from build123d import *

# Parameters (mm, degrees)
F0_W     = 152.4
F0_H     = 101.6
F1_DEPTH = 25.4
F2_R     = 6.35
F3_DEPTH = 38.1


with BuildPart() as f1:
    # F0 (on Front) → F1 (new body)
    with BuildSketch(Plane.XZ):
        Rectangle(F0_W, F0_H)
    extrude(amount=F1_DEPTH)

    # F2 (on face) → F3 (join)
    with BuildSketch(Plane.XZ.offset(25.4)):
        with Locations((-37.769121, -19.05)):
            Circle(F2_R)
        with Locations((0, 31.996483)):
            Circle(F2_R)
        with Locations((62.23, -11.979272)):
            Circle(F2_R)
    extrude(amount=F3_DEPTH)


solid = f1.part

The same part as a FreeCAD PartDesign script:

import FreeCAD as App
import Part
import Sketcher
Q = App.Units.Quantity


def add_polygon(sketch, points):
    """Adds a closed chain of lines whose ends are joined by coincident constraints."""
    first, n = sketch.GeometryCount, len(points)
    for a, b in zip(points, points[1:] + points[:1]):
        sketch.addGeometry(Part.LineSegment(App.Vector(*a, 0), App.Vector(*b, 0)), False)
    for i in range(n):
        sketch.addConstraint(Sketcher.Constraint("Coincident", first + i, 2, first + (i + 1) % n, 1))

doc = App.newDocument("Part")
body = doc.addObject("PartDesign::Body", "Body")

sketch1 = doc.addObject("Sketcher::SketchObject", "Sketch")
body.addObject(sketch1)
sketch1.AttachmentSupport = (doc.XZ_Plane, [""])
sketch1.MapMode = "FlatFace"
add_polygon(sketch1, [(-76, 51), (-76, -51), (76, -51), (76, 51)])
sketch1.addConstraint([
    Sketcher.Constraint("Vertical", 0),
    Sketcher.Constraint("Horizontal", 1),
    Sketcher.Constraint("Vertical", 2),
    Sketcher.Constraint("Horizontal", 3),
    Sketcher.Constraint("Symmetric", 0, 2, 2, 2, -1, 1),
    Sketcher.Constraint("DistanceX", 1, 1, 1, 2, Q("6 in")),
    Sketcher.Constraint("DistanceY", 0, 2, 0, 1, Q("4 in")),
])
pad1 = doc.addObject("PartDesign::Pad", "Pad")
body.addObject(pad1)
pad1.Profile = sketch1
pad1.Length = Q("1 in")

sketch2 = doc.addObject("Sketcher::SketchObject", "Sketch001")
body.addObject(sketch2)
sketch2.AttachmentSupport = (doc.XZ_Plane, [""])
sketch2.MapMode = "FlatFace"
sketch2.AttachmentOffset = App.Placement(App.Vector(0, 0, 1 * 25.4), App.Rotation())
sketch2.addGeometry([
    Part.Circle(App.Vector(-38, -19, 0), App.Vector(0, 0, 1), 6),
    Part.Circle(App.Vector(0, 32, 0), App.Vector(0, 0, 1), 6),
    Part.Circle(App.Vector(62, -12, 0), App.Vector(0, 0, 1), 6),
], False)
sketch2.addConstraint([
    Sketcher.Constraint("Equal", 0, 1),
    Sketcher.Constraint("Equal", 1, 2),
    Sketcher.Constraint("PointOnObject", 1, 3, -2),
    Sketcher.Constraint("Diameter", 0, Q("0.5 in")),
    Sketcher.Constraint("DistanceY", 0, 3, -1, 1, Q("0.75 in")),
    Sketcher.Constraint("DistanceX", -1, 1, 2, 3, Q("2.45 in")),
    Sketcher.Constraint("DistanceX", 0, 3, -1, 1, 37.769121),
    Sketcher.Constraint("DistanceY", 0, 3, 2, 3, 7.070728),
    Sketcher.Constraint("DistanceY", -1, 1, 1, 3, 31.996483),
])
pad2 = doc.addObject("PartDesign::Pad", "Pad001")
body.addObject(pad2)
pad2.Profile = sketch2
pad2.Length = Q("1.5 in")

doc.recompute()
